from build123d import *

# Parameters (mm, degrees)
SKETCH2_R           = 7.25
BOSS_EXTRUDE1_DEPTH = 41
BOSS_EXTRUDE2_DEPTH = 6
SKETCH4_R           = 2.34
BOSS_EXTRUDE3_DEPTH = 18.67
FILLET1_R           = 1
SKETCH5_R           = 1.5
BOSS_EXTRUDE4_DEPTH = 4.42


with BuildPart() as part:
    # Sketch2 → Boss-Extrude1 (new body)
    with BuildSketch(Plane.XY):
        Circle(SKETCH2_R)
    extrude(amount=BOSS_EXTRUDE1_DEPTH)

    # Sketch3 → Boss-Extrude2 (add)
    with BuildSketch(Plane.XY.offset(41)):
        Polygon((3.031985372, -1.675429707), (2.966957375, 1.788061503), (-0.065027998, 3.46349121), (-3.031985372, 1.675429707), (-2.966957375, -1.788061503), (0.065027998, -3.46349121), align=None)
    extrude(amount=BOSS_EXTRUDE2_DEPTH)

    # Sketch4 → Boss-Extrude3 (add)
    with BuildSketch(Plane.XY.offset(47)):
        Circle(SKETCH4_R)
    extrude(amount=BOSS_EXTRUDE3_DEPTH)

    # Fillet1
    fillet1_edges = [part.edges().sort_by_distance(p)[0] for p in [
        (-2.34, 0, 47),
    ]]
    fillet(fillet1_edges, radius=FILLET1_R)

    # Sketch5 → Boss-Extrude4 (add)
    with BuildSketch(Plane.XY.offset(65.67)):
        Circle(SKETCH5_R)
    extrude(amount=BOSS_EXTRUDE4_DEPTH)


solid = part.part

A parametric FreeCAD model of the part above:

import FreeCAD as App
import Part
import Sketcher
Q = App.Units.Quantity


def edges_at(feature, points):
    """Names of the edges that pass closest to the given points."""
    edges = feature.Shape.Edges
    near = lambda p: min(range(len(edges)), key=lambda i: edges[i].distToShape(Part.Vertex(*p))[0])
    return sorted({f"Edge{near(p) + 1}" for p in points})

doc = App.newDocument("Part")
body = doc.addObject("PartDesign::Body", "Body")

sketch1 = body.newObject("Sketcher::SketchObject", "Sketch")
sketch1.AttachmentSupport = (doc.getObject("XY_Plane"), [""])
sketch1.MapMode = "FlatFace"
sketch1.addGeometry(Part.Circle(App.Vector(0, 0, 0), App.Vector(0, 0, 1), 7.25), False)
sketch1.addConstraint([
    Sketcher.Constraint("Coincident", 0, 3, -1, 1),
    Sketcher.Constraint("Diameter", 0, Q("14.5 mm")),
])
pad1 = body.newObject("PartDesign::Pad", "Pad")
pad1.Profile = sketch1
pad1.Length = 41

sketch2 = body.newObject("Sketcher::SketchObject", "Sketch001")
sketch2.AttachmentSupport = (doc.getObject("XY_Plane"), [""])
sketch2.MapMode = "FlatFace"
sketch2.AttachmentOffset = App.Placement(App.Vector(0, 0, 41), App.Rotation())
sketch2.addGeometry([
    Part.LineSegment(App.Vector(3.031985, -1.67543, 0), App.Vector(2.966957, 1.788062, 0)),
    Part.LineSegment(App.Vector(2.966957, 1.788062, 0), App.Vector(-0.065028, 3.463491, 0)),
    Part.LineSegment(App.Vector(-0.065028, 3.463491, 0), App.Vector(-3.031985, 1.67543, 0)),
    Part.LineSegment(App.Vector(-3.031985, 1.67543, 0), App.Vector(-2.966957, -1.788062, 0)),
    Part.LineSegment(App.Vector(-2.966957, -1.788062, 0), App.Vector(0.065028, -3.463491, 0)),
    Part.LineSegment(App.Vector(0.065028, -3.463491, 0), App.Vector(3.031985, -1.67543, 0)),
], False)
sketch2.addConstraint([
    Sketcher.Constraint("Coincident", 0, 2, 1, 1),
    Sketcher.Constraint("Coincident", 1, 2, 2, 1),
    Sketcher.Constraint("Coincident", 2, 2, 3, 1),
    Sketcher.Constraint("Coincident", 3, 2, 4, 1),
    Sketcher.Constraint("Coincident", 4, 2, 5, 1),
    Sketcher.Constraint("Coincident", 5, 2, 0, 1),
    Sketcher.Constraint("Symmetric", 0, 2, 3, 2, -1, 1),
    Sketcher.Constraint("Symmetric", 1, 2, 4, 2, -1, 1),
    Sketcher.Constraint("Symmetric", 2, 2, 5, 2, -1, 1),
    Sketcher.Constraint("Equal", 0, 1),
    Sketcher.Constraint("Equal", 1, 2),
    Sketcher.Constraint("Distance", 0, Q("3.464102 mm")),
    Sketcher.Constraint("DistanceY", -1, 1, 0, 2, Q("1.788062 mm")),
    Sketcher.Constraint("DistanceY", -1, 1, 1, 2, Q("3.463491 mm")),
    Sketcher.Constraint("DistanceY", -1, 1, 2, 2, Q("1.67543 mm")),
])
pad2 = body.newObject("PartDesign::Pad", "Pad001")
pad2.Profile = sketch2
pad2.Length = 6

sketch3 = body.newObject("Sketcher::SketchObject", "Sketch002")
sketch3.AttachmentSupport = (doc.getObject("XY_Plane"), [""])
sketch3.MapMode = "FlatFace"
sketch3.AttachmentOffset = App.Placement(App.Vector(0, 0, 47), App.Rotation())
sketch3.addGeometry(Part.Circle(App.Vector(0, 0, 0), App.Vector(0, 0, 1), 2.34), False)
sketch3.addConstraint([
    Sketcher.Constraint("Coincident", 0, 3, -1, 1),
    Sketcher.Constraint("Diameter", 0, Q("4.68 mm")),
])
pad3 = body.newObject("PartDesign::Pad", "Pad002")
pad3.Profile = sketch3
pad3.Length = 18.67
doc.recompute()

fillet = body.newObject("PartDesign::Fillet", "Fillet")
fillet.Base = (pad3, edges_at(pad3, [(-2.34, 0, 47)]))
fillet.Radius = 1

sketch4 = body.newObject("Sketcher::SketchObject", "Sketch003")
sketch4.AttachmentSupport = (doc.getObject("XY_Plane"), [""])
sketch4.MapMode = "FlatFace"
sketch4.AttachmentOffset = App.Placement(App.Vector(0, 0, 65.67), App.Rotation())
sketch4.addGeometry(Part.Circle(App.Vector(0, 0, 0), App.Vector(0, 0, 1), 1.5), False)
sketch4.addConstraint([
    Sketcher.Constraint("Coincident", 0, 3, -1, 1),
    Sketcher.Constraint("Diameter", 0, Q("3 mm")),
])
pad4 = body.newObject("PartDesign::Pad", "Pad003")
pad4.Profile = sketch4
pad4.Length = 4.42

doc.recompute()
